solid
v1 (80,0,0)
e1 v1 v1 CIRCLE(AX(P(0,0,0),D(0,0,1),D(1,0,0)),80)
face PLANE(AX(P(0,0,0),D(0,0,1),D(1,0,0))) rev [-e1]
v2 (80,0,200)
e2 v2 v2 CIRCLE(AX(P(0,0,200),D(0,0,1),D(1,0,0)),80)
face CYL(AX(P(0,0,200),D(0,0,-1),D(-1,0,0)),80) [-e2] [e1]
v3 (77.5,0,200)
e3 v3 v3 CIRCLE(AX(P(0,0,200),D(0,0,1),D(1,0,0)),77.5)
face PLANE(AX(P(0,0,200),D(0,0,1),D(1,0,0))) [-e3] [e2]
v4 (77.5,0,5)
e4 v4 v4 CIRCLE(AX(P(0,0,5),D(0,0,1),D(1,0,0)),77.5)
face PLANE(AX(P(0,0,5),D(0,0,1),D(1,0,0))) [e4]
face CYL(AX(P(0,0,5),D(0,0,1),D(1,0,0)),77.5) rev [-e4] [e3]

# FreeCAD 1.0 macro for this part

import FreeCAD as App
import Part
import Sketcher

doc = App.newDocument("Part")
body = doc.addObject("PartDesign::Body", "Body")

sketch1 = body.newObject("Sketcher::SketchObject", "Sketch")
sketch1.AttachmentSupport = (doc.getObject("XY_Plane"), [""])
sketch1.MapMode = "FlatFace"
sketch1.addGeometry(Part.Circle(App.Vector(0, 0, 0), App.Vector(0, 0, 1), 80), False)
sketch1.addConstraint([
    Sketcher.Constraint("Coincident", 0, 3, -1, 1),
    Sketcher.Constraint("Diameter", 0, 160.0),
])
pad1 = body.newObject("PartDesign::Pad", "Pad")
pad1.Profile = sketch1
pad1.Length = 200

sketch2 = body.newObject("Sketcher::SketchObject", "Sketch001")
sketch2.AttachmentSupport = (doc.getObject("XY_Plane"), [""])
sketch2.MapMode = "FlatFace"
sketch2.AttachmentOffset = App.Placement(App.Vector(0, 0, 200), App.Rotation())
sketch2.addGeometry(Part.Circle(App.Vector(0, 0, 0), App.Vector(0, 0, 1), 78), False)
sketch2.addConstraint([
    Sketcher.Constraint("Coincident", 0, 3, -1, 1),
    Sketcher.Constraint("Diameter", 0, 155.0),
])
pocket1 = body.newObject("PartDesign::Pocket", "Pocket")
pocket1.Profile = sketch2
pocket1.Length = 195

doc.recompute()
